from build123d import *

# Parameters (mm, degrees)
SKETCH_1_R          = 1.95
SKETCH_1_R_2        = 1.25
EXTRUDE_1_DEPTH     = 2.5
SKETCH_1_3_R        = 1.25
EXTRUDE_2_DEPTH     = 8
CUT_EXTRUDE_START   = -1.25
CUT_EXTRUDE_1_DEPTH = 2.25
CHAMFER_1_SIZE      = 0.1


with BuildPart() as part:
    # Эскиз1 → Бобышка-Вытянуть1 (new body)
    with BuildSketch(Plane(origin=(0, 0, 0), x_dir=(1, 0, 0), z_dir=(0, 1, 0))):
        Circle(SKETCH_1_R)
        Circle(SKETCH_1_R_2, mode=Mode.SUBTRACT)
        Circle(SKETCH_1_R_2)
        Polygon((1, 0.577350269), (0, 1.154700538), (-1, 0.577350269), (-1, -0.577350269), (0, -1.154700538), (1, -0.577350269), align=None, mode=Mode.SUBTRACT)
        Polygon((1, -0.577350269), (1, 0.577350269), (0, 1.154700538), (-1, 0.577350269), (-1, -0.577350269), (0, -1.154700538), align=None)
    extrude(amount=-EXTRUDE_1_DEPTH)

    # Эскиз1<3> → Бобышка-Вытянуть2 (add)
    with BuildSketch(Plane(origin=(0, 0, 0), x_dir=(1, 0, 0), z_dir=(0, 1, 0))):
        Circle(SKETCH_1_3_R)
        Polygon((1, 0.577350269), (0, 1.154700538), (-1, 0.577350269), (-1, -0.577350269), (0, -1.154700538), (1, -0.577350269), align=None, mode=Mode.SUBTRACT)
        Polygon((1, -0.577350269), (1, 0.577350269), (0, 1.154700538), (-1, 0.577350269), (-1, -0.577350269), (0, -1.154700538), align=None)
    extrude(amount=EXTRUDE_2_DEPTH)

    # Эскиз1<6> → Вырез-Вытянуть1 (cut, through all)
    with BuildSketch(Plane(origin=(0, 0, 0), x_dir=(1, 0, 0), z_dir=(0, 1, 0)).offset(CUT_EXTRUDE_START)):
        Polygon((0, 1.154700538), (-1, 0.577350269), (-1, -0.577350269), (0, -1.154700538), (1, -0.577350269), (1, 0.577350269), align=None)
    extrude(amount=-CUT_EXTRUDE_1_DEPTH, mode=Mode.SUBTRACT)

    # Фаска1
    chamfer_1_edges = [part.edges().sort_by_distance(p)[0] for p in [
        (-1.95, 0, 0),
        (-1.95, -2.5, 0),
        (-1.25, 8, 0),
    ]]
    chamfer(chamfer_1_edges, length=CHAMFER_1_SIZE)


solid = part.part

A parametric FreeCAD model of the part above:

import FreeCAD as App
import Part
import Sketcher
Q = App.Units.Quantity


def edges_at(feature, points):
    """Names of the edges that pass closest to the given points."""
    edges = feature.Shape.Edges
    near = lambda p: min(range(len(edges)), key=lambda i: edges[i].distToShape(Part.Vertex(*p))[0])
    return sorted({f"Edge{near(p) + 1}" for p in points})

doc = App.newDocument("Part")
params = doc.addObject("Spreadsheet::Sheet", "Params")
for row, (alias, value) in enumerate([
    ("sketch1_diameter", "3.9 mm"),
    ("pad1_length", "2.5 mm"),
    ("sketch2_diameter", "2.5 mm"),
    ("pad2_length", "8 mm"),
    ("chamfer_size", "0.1 mm"),
], start=1):
    params.set(f"A{row}", alias)
    params.set(f"B{row}", "=" + value)
    params.setAlias(f"B{row}", alias)

body = doc.addObject("PartDesign::Body", "Body")

# Sketch on XZ plane
sketch1 = body.newObject("Sketcher::SketchObject", "Sketch")
sketch1.AttachmentSupport = (doc.getObject("XZ_Plane"), [""])
sketch1.MapMode = "FlatFace"
sketch1.addGeometry(Part.Circle(App.Vector(0, 0, 0), App.Vector(0, 0, 1), 1.95), False)
sketch1.addConstraint([
    Sketcher.Constraint("Coincident", 0, 3, -1, 1),
    Sketcher.Constraint("Diameter", 0, 3.9),
])
sketch1.setExpression("Constraints[1]", "Params.sketch1_diameter")
pad1 = body.newObject("PartDesign::Pad", "Pad")
pad1.Profile = sketch1
pad1.setExpression("Length", "Params.pad1_length")

# Sketch on XZ plane
sketch2 = body.newObject("Sketcher::SketchObject", "Sketch001")
sketch2.AttachmentSupport = (doc.getObject("XZ_Plane"), [""])
sketch2.MapMode = "FlatFace"
sketch2.addGeometry(Part.Circle(App.Vector(0, 0, 0), App.Vector(0, 0, 1), 1.25), False)
sketch2.addConstraint([
    Sketcher.Constraint("Coincident", 0, 3, -1, 1),
    Sketcher.Constraint("Diameter", 0, 2.5),
])
sketch2.setExpression("Constraints[1]", "Params.sketch2_diameter")
pad2 = body.newObject("PartDesign::Pad", "Pad001")
pad2.Profile = sketch2
pad2.setExpression("Length", "Params.pad2_length")
pad2.Reversed = True

# Sketch on XZ plane
sketch3 = body.newObject("Sketcher::SketchObject", "Sketch002")
sketch3.AttachmentSupport = (doc.getObject("XZ_Plane"), [""])
sketch3.MapMode = "FlatFace"
sketch3.AttachmentOffset = App.Placement(App.Vector(0, 0, 1.25), App.Rotation())
sketch3.addGeometry([
    Part.LineSegment(App.Vector(0, -1.154701, 0), App.Vector(-1, -0.57735, 0)),  # 0
    Part.LineSegment(App.Vector(-1, -0.57735, 0), App.Vector(-1, 0.57735, 0)),  # 1
    Part.LineSegment(App.Vector(-1, 0.57735, 0), App.Vector(0, 1.154701, 0)),  # 2
    Part.LineSegment(App.Vector(0, 1.154701, 0), App.Vector(1, 0.57735, 0)),  # 3
    Part.LineSegment(App.Vector(1, 0.57735, 0), App.Vector(1, -0.57735, 0)),  # 4
    Part.LineSegment(App.Vector(1, -0.57735, 0), App.Vector(0, -1.154701, 0)),  # 5
], False)
sketch3.addConstraint([
    Sketcher.Constraint("Coincident", 0, 2, 1, 1),
    Sketcher.Constraint("Coincident", 1, 2, 2, 1),
    Sketcher.Constraint("Coincident", 2, 2, 3, 1),
    Sketcher.Constraint("Coincident", 3, 2, 4, 1),
    Sketcher.Constraint("Coincident", 4, 2, 5, 1),
    Sketcher.Constraint("Coincident", 5, 2, 0, 1),
    Sketcher.Constraint("Vertical", 1),
    Sketcher.Constraint("Vertical", 4),
    Sketcher.Constraint("Symmetric", 0, 2, 3, 2, -1, 1),
    Sketcher.Constraint("Symmetric", 2, 2, 5, 2, -1, 1),
    Sketcher.Constraint("PointOnObject", 2, 2, -2),
    Sketcher.Constraint("Parallel", 2, 5),
    Sketcher.Constraint("Horizontal", 1, 2, 3, 2),
    Sketcher.Constraint("Angle", 0, Q("150 deg")),
    Sketcher.Constraint("DistanceX", 0, 2, -1, 1, 1.0),
    Sketcher.Constraint("DistanceY", 1, 1, 1, 2, 1.154701),
])
pocket1 = body.newObject("PartDesign::Pocket", "Pocket")
pocket1.Profile = sketch3
pocket1.Type = "ThroughAll"
pocket1.Reversed = True
doc.recompute()

chamfer = body.newObject("PartDesign::Chamfer", "Chamfer")
chamfer.Base = (pocket1, edges_at(pocket1, [(-1.95, 0, 0), (-1.95, -2.5, 0), (-1.25, 8, 0)]))
chamfer.setExpression("Size", "Params.chamfer_size")

doc.recompute()
